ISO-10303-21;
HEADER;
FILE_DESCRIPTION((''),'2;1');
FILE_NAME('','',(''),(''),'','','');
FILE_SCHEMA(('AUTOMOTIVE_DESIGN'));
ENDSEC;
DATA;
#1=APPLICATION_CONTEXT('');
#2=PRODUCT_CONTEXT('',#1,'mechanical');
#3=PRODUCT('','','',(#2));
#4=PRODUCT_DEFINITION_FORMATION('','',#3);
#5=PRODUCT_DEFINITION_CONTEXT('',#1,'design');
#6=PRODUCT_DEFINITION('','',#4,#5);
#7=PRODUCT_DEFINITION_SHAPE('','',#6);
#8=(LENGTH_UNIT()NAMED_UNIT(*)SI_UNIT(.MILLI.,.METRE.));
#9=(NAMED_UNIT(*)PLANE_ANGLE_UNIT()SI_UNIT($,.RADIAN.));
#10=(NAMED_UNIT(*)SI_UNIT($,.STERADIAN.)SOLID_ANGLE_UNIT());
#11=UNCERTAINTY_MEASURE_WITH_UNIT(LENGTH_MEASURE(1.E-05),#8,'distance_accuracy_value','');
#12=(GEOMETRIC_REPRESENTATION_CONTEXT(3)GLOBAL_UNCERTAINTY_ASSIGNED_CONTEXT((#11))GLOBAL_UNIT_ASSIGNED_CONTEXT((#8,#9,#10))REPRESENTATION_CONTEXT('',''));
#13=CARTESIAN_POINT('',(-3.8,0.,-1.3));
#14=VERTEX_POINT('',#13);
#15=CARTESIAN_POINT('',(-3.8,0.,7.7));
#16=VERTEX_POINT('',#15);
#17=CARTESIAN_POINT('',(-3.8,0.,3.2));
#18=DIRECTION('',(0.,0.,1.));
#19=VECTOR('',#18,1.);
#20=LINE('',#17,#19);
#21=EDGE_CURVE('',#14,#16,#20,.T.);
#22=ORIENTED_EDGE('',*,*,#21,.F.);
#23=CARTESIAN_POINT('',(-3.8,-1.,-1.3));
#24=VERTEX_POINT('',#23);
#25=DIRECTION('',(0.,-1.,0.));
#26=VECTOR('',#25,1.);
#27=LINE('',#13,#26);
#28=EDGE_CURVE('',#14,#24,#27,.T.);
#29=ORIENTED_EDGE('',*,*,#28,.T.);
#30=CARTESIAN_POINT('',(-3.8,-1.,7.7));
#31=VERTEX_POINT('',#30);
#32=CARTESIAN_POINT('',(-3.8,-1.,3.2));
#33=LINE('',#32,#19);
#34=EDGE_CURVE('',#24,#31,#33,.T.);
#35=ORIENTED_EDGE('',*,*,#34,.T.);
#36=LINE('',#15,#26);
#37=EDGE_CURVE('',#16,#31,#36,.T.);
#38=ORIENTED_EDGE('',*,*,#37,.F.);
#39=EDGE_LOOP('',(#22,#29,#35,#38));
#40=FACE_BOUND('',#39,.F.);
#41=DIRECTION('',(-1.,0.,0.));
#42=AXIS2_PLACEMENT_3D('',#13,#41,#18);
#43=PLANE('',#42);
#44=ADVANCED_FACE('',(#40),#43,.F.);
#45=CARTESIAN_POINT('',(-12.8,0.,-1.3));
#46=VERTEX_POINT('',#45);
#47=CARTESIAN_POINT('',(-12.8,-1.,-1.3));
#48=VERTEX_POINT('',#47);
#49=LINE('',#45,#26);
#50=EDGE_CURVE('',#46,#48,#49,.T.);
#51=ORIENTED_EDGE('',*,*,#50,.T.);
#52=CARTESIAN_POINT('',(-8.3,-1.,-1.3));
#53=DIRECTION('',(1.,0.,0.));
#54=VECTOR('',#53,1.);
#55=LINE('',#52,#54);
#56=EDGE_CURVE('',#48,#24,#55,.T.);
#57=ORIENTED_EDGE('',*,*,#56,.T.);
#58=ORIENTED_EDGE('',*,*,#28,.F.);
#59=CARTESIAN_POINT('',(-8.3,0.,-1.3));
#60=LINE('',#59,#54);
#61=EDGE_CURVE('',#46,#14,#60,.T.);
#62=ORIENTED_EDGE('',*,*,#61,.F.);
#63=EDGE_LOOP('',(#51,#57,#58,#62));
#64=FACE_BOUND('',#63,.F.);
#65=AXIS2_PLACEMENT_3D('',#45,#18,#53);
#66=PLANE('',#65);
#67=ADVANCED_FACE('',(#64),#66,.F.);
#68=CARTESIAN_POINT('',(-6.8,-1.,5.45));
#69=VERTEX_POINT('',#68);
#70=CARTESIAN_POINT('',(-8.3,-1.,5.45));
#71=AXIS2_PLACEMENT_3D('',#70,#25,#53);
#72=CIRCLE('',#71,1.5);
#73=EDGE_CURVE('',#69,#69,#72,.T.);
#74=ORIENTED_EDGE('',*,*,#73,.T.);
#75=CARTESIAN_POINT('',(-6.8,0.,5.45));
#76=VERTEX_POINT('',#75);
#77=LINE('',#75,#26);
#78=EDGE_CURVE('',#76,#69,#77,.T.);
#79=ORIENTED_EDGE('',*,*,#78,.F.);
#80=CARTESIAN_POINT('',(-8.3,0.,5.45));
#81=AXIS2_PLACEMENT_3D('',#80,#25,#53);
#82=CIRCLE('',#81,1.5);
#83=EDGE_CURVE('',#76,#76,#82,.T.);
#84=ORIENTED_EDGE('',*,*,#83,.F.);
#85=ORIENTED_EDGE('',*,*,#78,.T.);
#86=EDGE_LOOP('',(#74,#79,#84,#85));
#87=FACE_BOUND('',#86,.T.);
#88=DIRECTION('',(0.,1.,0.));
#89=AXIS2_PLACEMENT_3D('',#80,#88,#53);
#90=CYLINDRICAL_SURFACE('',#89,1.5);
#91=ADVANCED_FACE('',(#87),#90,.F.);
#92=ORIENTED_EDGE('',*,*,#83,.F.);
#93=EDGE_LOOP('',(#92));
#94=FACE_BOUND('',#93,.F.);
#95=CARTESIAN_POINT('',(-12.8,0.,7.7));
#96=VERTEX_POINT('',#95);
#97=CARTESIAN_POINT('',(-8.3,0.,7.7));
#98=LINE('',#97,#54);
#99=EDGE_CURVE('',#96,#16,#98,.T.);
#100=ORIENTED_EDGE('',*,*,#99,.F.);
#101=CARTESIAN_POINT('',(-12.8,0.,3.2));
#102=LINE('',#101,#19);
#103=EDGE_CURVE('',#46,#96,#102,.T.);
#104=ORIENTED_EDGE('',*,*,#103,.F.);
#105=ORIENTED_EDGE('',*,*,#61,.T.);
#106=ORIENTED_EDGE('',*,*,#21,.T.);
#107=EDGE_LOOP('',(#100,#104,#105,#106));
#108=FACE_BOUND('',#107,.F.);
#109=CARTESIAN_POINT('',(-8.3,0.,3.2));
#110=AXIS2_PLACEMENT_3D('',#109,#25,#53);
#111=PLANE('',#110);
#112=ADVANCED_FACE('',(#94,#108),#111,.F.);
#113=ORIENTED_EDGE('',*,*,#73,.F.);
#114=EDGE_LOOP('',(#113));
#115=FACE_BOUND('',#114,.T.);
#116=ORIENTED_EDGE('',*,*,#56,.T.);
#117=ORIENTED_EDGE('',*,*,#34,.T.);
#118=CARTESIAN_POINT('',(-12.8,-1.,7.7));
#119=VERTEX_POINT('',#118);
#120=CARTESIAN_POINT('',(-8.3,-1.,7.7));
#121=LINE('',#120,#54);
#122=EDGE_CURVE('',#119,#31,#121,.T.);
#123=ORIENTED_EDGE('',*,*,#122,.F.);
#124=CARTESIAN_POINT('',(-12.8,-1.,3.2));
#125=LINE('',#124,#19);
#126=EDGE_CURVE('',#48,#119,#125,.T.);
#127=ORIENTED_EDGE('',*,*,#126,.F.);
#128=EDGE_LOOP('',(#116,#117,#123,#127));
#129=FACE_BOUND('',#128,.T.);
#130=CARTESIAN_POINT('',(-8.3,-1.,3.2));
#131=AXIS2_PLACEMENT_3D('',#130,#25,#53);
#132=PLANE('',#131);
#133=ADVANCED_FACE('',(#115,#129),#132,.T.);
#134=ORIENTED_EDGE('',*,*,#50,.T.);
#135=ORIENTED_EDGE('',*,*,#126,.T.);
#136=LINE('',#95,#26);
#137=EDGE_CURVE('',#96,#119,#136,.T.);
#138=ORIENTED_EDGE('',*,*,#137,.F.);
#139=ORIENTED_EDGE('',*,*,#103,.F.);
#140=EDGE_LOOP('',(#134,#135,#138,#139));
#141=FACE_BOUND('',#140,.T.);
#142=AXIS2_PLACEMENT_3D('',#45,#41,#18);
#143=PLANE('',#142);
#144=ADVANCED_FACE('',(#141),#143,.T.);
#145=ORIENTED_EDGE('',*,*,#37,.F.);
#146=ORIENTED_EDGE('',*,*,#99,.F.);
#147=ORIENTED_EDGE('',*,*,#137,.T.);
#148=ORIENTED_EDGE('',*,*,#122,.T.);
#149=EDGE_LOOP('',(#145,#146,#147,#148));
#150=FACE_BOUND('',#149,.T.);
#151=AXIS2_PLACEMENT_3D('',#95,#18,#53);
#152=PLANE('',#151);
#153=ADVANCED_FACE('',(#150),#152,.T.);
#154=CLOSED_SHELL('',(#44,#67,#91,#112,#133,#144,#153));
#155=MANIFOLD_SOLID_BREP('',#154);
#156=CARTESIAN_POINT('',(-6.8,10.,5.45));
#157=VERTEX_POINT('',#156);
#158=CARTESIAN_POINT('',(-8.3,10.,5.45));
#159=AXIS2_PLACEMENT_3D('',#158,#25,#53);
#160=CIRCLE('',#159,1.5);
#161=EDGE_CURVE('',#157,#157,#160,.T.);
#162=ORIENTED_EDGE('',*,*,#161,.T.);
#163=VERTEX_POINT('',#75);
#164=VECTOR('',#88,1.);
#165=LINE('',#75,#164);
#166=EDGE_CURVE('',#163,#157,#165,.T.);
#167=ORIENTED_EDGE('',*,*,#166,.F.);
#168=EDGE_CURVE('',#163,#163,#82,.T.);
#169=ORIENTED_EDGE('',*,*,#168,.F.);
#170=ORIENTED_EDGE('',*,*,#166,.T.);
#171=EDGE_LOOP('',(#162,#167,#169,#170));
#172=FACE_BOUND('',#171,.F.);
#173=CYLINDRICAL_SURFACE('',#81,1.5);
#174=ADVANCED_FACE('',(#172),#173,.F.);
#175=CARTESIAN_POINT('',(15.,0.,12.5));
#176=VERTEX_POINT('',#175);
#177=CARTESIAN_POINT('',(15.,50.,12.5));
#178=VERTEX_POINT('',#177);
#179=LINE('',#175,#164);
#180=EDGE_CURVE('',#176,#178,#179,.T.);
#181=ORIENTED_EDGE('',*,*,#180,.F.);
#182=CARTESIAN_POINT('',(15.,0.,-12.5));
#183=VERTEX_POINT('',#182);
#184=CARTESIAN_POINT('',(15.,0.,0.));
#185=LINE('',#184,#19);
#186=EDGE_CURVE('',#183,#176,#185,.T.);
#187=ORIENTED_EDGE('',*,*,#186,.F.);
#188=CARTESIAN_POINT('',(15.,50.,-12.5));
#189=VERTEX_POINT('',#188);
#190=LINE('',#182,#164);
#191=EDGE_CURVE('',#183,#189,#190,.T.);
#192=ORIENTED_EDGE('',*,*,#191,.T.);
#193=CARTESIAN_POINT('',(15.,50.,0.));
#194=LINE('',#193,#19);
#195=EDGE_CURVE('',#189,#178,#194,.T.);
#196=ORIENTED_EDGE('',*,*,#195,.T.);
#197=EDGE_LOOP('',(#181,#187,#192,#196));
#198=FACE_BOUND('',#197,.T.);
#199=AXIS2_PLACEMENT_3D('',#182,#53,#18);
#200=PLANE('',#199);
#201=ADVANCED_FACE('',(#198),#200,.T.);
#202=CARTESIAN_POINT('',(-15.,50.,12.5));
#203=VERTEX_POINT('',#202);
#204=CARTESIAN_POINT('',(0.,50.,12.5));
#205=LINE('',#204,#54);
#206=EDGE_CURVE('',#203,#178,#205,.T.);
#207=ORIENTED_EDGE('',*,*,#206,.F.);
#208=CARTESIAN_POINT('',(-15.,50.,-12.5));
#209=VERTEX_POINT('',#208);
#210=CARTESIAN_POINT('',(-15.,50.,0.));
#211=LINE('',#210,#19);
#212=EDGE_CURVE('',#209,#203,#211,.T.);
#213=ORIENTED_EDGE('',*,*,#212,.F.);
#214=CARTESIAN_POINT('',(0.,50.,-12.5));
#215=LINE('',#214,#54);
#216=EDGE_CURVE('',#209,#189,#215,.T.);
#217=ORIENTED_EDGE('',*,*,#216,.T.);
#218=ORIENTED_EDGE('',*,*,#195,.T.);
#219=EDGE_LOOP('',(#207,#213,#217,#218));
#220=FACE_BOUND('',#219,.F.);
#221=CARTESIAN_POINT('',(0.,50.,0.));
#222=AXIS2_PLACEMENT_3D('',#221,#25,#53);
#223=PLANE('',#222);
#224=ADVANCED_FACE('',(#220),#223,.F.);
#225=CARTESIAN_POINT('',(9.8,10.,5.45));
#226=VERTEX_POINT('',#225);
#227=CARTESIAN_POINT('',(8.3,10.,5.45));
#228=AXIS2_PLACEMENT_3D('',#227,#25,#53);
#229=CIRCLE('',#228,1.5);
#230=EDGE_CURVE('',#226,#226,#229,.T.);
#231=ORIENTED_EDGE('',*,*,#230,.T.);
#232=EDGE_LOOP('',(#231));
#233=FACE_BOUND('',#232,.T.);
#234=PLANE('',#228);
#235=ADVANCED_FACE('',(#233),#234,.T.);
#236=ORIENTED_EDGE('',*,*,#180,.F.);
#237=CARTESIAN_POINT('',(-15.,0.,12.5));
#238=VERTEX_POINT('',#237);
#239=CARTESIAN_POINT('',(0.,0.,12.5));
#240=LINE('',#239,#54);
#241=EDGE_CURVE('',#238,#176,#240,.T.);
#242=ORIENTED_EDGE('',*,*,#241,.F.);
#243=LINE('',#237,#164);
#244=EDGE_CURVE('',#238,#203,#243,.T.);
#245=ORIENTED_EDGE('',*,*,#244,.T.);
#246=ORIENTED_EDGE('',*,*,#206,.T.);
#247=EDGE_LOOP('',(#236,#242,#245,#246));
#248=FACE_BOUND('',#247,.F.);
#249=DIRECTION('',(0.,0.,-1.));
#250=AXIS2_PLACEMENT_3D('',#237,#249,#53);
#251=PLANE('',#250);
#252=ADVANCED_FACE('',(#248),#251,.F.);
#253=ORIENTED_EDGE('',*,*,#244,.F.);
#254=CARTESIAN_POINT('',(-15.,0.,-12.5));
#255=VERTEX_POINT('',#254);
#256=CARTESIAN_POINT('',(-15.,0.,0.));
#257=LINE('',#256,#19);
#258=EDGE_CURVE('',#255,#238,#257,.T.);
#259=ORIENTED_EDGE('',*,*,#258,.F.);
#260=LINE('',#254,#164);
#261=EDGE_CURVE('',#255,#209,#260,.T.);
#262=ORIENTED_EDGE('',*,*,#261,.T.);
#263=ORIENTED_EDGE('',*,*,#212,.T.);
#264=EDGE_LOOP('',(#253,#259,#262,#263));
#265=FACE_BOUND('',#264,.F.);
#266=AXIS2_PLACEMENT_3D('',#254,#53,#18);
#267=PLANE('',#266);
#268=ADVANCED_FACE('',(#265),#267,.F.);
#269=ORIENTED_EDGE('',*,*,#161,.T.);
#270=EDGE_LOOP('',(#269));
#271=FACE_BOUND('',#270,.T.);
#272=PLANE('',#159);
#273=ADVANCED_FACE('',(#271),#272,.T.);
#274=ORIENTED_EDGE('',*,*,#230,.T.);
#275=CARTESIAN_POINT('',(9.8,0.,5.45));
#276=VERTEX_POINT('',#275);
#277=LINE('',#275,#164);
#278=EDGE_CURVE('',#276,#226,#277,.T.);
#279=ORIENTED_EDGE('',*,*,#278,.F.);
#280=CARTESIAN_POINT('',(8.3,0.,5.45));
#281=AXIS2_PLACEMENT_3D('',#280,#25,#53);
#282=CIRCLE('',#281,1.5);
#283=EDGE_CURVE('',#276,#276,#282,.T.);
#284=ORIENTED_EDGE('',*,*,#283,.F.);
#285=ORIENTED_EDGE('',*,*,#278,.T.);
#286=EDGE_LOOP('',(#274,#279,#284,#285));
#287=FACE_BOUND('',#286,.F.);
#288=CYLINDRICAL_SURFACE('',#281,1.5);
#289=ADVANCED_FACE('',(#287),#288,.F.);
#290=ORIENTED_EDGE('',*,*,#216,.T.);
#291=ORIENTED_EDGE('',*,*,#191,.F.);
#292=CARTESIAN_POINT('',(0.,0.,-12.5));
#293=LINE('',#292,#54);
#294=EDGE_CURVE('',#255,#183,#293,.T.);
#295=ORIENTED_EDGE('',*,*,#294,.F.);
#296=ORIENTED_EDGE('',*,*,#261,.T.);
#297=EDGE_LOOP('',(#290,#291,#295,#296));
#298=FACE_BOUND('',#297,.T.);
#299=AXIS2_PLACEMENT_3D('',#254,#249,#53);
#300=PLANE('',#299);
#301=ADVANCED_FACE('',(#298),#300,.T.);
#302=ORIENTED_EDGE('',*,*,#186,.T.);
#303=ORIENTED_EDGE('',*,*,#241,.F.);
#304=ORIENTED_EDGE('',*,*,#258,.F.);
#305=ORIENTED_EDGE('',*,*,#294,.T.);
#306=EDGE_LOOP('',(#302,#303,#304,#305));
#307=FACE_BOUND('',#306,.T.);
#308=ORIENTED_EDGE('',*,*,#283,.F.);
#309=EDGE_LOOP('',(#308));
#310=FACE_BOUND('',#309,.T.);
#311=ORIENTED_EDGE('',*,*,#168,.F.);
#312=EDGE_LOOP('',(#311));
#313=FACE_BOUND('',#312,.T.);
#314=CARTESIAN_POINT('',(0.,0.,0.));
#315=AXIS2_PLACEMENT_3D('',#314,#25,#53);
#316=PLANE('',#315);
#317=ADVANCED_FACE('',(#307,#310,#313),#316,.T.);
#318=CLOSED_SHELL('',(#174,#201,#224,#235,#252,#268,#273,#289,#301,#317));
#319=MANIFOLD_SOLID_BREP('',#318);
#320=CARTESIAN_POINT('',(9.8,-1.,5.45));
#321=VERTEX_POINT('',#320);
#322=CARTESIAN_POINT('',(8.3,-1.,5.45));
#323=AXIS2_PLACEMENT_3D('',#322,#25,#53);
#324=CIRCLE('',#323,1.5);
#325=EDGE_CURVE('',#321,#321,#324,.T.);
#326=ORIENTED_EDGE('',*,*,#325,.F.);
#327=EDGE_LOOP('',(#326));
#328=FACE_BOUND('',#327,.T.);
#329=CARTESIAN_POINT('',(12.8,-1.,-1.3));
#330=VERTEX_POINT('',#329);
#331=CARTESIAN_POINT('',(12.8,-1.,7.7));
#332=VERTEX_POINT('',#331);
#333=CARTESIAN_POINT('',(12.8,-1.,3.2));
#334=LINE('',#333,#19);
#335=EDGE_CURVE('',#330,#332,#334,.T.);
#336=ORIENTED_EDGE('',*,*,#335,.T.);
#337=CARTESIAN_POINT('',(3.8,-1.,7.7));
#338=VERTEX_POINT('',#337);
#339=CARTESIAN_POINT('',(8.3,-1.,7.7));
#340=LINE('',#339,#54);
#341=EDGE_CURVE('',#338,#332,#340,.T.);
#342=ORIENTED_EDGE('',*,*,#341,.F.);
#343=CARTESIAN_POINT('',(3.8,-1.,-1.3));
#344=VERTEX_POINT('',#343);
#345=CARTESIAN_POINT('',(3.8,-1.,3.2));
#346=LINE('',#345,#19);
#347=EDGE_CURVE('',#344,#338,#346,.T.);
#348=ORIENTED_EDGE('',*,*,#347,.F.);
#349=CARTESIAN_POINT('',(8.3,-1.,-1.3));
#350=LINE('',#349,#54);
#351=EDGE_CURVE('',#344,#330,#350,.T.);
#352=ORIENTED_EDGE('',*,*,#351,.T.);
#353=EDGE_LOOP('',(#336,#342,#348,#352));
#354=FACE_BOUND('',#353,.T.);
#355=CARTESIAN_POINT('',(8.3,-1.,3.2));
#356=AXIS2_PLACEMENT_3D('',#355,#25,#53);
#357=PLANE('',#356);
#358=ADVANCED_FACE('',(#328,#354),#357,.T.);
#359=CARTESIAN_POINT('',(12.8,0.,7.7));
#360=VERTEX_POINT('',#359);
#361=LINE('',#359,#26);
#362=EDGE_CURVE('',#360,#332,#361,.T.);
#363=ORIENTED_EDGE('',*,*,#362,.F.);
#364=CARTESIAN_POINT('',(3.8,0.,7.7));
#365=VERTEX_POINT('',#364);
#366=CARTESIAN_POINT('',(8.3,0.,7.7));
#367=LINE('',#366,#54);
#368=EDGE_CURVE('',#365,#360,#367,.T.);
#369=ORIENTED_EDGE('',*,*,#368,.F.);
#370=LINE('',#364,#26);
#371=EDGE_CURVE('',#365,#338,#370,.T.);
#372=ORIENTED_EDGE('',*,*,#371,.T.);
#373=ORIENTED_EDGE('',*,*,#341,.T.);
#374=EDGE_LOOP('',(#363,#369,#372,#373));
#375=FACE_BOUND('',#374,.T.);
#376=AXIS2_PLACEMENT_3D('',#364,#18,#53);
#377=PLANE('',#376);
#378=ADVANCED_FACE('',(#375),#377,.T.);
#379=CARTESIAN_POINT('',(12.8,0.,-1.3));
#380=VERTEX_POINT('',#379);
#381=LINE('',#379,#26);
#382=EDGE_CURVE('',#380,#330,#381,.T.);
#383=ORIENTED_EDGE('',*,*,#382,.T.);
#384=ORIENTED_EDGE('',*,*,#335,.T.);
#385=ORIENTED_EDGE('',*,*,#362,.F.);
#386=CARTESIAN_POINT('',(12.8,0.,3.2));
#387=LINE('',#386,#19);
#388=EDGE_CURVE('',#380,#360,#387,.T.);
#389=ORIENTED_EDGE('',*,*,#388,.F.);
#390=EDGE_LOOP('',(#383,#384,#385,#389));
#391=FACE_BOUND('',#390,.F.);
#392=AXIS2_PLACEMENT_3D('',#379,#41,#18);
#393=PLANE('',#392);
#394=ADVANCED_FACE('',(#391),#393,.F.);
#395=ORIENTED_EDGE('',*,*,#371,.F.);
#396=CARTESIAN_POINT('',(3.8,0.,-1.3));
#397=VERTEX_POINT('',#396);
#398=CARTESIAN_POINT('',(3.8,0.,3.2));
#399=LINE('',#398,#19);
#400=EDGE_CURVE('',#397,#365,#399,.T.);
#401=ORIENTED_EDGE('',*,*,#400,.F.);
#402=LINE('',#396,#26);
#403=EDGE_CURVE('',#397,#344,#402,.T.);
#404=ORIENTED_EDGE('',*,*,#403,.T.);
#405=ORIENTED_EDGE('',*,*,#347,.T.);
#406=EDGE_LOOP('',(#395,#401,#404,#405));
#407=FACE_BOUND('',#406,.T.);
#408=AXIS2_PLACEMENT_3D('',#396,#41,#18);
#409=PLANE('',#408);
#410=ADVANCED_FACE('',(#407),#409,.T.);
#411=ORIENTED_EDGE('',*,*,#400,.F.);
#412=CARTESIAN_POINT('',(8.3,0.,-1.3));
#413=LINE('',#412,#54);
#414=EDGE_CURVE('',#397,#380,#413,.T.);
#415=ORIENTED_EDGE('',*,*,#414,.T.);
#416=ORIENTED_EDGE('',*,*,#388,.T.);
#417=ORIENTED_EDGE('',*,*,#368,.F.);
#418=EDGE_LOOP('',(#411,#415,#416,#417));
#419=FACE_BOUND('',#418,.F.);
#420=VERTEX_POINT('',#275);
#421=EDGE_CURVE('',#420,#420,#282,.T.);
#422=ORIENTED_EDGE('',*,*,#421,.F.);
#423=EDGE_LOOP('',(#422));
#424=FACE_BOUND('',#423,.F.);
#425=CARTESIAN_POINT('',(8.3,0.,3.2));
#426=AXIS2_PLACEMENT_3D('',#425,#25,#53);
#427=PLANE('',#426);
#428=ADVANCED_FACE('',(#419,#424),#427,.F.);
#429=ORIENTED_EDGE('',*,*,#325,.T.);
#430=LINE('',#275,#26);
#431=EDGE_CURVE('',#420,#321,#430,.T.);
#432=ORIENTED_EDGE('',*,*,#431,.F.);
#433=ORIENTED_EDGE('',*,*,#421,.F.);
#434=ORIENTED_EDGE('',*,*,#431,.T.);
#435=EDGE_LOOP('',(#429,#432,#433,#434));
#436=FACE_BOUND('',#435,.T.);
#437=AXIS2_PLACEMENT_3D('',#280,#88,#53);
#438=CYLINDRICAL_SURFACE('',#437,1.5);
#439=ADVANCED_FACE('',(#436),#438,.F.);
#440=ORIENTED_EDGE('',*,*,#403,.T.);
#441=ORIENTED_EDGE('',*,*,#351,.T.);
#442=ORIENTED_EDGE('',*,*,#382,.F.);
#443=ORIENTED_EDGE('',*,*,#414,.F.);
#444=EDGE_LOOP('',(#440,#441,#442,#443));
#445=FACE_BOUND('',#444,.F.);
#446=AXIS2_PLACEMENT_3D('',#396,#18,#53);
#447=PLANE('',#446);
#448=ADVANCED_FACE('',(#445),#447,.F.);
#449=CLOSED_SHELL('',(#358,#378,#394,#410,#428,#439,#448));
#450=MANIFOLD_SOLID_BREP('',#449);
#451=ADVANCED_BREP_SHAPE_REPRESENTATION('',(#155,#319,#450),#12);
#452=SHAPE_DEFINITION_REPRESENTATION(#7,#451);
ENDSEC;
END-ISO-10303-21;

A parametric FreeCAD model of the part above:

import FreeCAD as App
import Part
import Sketcher


def add_polygon(sketch, points):
    """Adds a closed chain of lines whose ends are joined by coincident constraints."""
    first, n = sketch.GeometryCount, len(points)
    for a, b in zip(points, points[1:] + points[:1]):
        sketch.addGeometry(Part.LineSegment(App.Vector(*a, 0), App.Vector(*b, 0)), False)
    for i in range(n):
        sketch.addConstraint(Sketcher.Constraint("Coincident", first + i, 2, first + (i + 1) % n, 1))

doc = App.newDocument("Part")
body = doc.addObject("PartDesign::Body", "Body")

sketch1 = body.newObject("Sketcher::SketchObject", "Sketch")
sketch1.AttachmentSupport = (doc.getObject("XZ_Plane"), [""])
sketch1.MapMode = "FlatFace"
add_polygon(sketch1, [(-15, 12.5), (-15, -12.5), (15, -12.5), (15, 12.5)])
sketch1.addConstraint([
    Sketcher.Constraint("Vertical", 0),
    Sketcher.Constraint("Horizontal", 1),
    Sketcher.Constraint("Vertical", 2),
    Sketcher.Constraint("Horizontal", 3),
    Sketcher.Constraint("Symmetric", 0, 2, 2, 2, -1, 1),
    Sketcher.Constraint("DistanceX", 1, 1, 1, 2, 30.0),
    Sketcher.Constraint("DistanceY", 0, 2, 0, 1, 25.0),
])
pad1 = body.newObject("PartDesign::Pad", "Pad")
pad1.Profile = sketch1
pad1.Length = 50
pad1.Reversed = True

sketch2 = body.newObject("Sketcher::SketchObject", "Sketch001")
sketch2.AttachmentSupport = (doc.getObject("XZ_Plane"), [""])
sketch2.MapMode = "FlatFace"
sketch2.addGeometry([
    Part.Circle(App.Vector(-8.3, 5.45, 0), App.Vector(0, 0, 1), 1.5),
    Part.Circle(App.Vector(8.3, 5.45, 0), App.Vector(0, 0, 1), 1.5),
], False)
sketch2.addConstraint([
    Sketcher.Constraint("Equal", 0, 1),
    Sketcher.Constraint("Symmetric", 0, 3, 1, 3, -2),
    Sketcher.Constraint("Diameter", 0, 3.0),
    Sketcher.Constraint("DistanceX", 0, 3, -1, 1, 8.3),
    Sketcher.Constraint("DistanceY", -1, 1, 0, 3, 5.45),
])
pocket1 = body.newObject("PartDesign::Pocket", "Pocket")
pocket1.Profile = sketch2
pocket1.Length = 10
body2 = doc.addObject("PartDesign::Body", "Body001")
body2.AllowCompound = True

sketch3 = body2.newObject("Sketcher::SketchObject", "Sketch002")
sketch3.AttachmentSupport = (doc.getObject("XZ_Plane001"), [""])
sketch3.MapMode = "FlatFace"
add_polygon(sketch3, [(-12.8, 7.7), (-12.8, -1.3), (-3.8, -1.3), (-3.8, 7.7)])
sketch3.addGeometry(Part.Circle(App.Vector(-8.3, 5.45, 0), App.Vector(0, 0, 1), 1.5), False)
add_polygon(sketch3, [(3.8, 7.7), (3.8, -1.3), (12.8, -1.3), (12.8, 7.7)])
sketch3.addGeometry(Part.Circle(App.Vector(8.3, 5.45, 0), App.Vector(0, 0, 1), 1.5), False)
sketch3.addConstraint([
    Sketcher.Constraint("Vertical", 0),
    Sketcher.Constraint("Horizontal", 1),
    Sketcher.Constraint("Vertical", 2),
    Sketcher.Constraint("Horizontal", 3),
    Sketcher.Constraint("Vertical", 5),
    Sketcher.Constraint("Horizontal", 6),
    Sketcher.Constraint("Vertical", 7),
    Sketcher.Constraint("Horizontal", 8),
    Sketcher.Constraint("Equal", 4, 9),
    Sketcher.Constraint("Symmetric", 4, 3, 9, 3, -2),
    Sketcher.Constraint("Symmetric", 1, 2, 5, 2, -2),
    Sketcher.Constraint("Symmetric", 3, 2, 7, 2, -2),
    Sketcher.Constraint("Equal", 8, 0),
    Sketcher.Constraint("Diameter", 4, 3.0),
    Sketcher.Constraint("DistanceX", 1, 1, 1, 2, 9.0),
    Sketcher.Constraint("DistanceX", 4, 3, -1, 1, 8.3),
    Sketcher.Constraint("DistanceX", 0, 2, -1, 1, 12.8),
    Sketcher.Constraint("DistanceY", 0, 2, -1, 1, 1.3),
    Sketcher.Constraint("DistanceY", -1, 1, 4, 3, 5.45),
])
pad2 = body2.newObject("PartDesign::Pad", "Pad001")
pad2.Profile = sketch3
pad2.Length = 1

doc.recompute()
